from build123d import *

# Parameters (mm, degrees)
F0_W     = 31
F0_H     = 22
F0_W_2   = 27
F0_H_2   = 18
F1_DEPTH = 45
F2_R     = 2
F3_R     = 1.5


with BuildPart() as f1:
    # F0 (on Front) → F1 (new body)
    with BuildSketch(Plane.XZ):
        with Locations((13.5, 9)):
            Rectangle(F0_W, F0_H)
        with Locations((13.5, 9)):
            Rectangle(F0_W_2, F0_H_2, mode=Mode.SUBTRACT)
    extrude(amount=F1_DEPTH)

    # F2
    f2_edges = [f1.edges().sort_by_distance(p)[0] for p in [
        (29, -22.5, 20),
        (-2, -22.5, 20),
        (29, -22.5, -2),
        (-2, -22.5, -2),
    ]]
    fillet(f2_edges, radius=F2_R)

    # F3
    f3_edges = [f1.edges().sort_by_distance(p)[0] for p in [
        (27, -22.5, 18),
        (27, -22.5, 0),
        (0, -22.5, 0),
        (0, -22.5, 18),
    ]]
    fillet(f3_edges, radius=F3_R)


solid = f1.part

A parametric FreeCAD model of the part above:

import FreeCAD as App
import Part
import Sketcher
from FreeCAD import Vector
Q = App.Units.Quantity


def edges_at(feature, points):
    """Names of the edges that pass closest to the given points."""
    edges = feature.Shape.Edges
    near = lambda p: min(range(len(edges)), key=lambda i: edges[i].distToShape(Part.Vertex(*p))[0])
    return sorted({f"Edge{near(p) + 1}" for p in points})


def add_polygon(sketch, points):
    """Adds a closed chain of lines whose ends are joined by coincident constraints."""
    first, n = sketch.GeometryCount, len(points)
    for a, b in zip(points, points[1:] + points[:1]):
        sketch.addGeometry(Part.LineSegment(App.Vector(*a, 0), App.Vector(*b, 0)), False)
    for i in range(n):
        sketch.addConstraint(Sketcher.Constraint("Coincident", first + i, 2, first + (i + 1) % n, 1))

doc = App.newDocument("Part")
body = doc.addObject("PartDesign::Body", "Body")

sketch1 = body.newObject("Sketcher::SketchObject", "Sketch")
sketch1.AttachmentSupport = (doc.getObject("XZ_Plane"), [""])
sketch1.MapMode = "FlatFace"
add_polygon(sketch1, [(-2, 20), (-2, -2), (29, -2), (29, 20)])
add_polygon(sketch1, [(27, 0), (0, 0), (0, 18), (27, 18)])
sketch1.addConstraint(Sketcher.Constraint("Vertical", 0))
sketch1.addConstraint(Sketcher.Constraint("Horizontal", 1))
sketch1.addConstraint(Sketcher.Constraint("Vertical", 2))
sketch1.addConstraint(Sketcher.Constraint("Horizontal", 3))
sketch1.addConstraint(Sketcher.Constraint("Horizontal", 4))
sketch1.addConstraint(Sketcher.Constraint("Vertical", 5))
sketch1.addConstraint(Sketcher.Constraint("Horizontal", 6))
sketch1.addConstraint(Sketcher.Constraint("Vertical", 7))
sketch1.addConstraint(Sketcher.Constraint("Coincident", 4, 2, -1, 1))
sketch1.addConstraint(Sketcher.Constraint("DistanceX", 1, 1, 1, 2, Q("31 mm")))
sketch1.addConstraint(Sketcher.Constraint("DistanceX", 4, 2, 4, 1, Q("27 mm")))
sketch1.addConstraint(Sketcher.Constraint("DistanceY", 0, 2, 0, 1, Q("22 mm")))
sketch1.addConstraint(Sketcher.Constraint("DistanceY", 5, 1, 5, 2, Q("18 mm")))
sketch1.addConstraint(Sketcher.Constraint("DistanceX", 0, 2, -1, 1, Q("2 mm")))
sketch1.addConstraint(Sketcher.Constraint("DistanceY", 0, 2, -1, 1, Q("2 mm")))
pad1 = body.newObject("PartDesign::Pad", "Pad")
pad1.Profile = sketch1
pad1.Length = 45
doc.recompute()

fillet = body.newObject("PartDesign::Fillet", "Fillet")
fillet.Base = (pad1, edges_at(pad1, [
    (29, -22.5, 20),
    (-2, -22.5, 20),
    (29, -22.5, -2),
    (-2, -22.5, -2),
]))
fillet.Radius = 2
doc.recompute()

fillet2 = body.newObject("PartDesign::Fillet", "Fillet001")
fillet2.Base = (fillet, edges_at(fillet, [
    (27, -22.5, 18),
    (27, -22.5, 0),
    (0, -22.5, 0),
    (0, -22.5, 18),
]))
fillet2.Radius = 1.5

doc.recompute()
